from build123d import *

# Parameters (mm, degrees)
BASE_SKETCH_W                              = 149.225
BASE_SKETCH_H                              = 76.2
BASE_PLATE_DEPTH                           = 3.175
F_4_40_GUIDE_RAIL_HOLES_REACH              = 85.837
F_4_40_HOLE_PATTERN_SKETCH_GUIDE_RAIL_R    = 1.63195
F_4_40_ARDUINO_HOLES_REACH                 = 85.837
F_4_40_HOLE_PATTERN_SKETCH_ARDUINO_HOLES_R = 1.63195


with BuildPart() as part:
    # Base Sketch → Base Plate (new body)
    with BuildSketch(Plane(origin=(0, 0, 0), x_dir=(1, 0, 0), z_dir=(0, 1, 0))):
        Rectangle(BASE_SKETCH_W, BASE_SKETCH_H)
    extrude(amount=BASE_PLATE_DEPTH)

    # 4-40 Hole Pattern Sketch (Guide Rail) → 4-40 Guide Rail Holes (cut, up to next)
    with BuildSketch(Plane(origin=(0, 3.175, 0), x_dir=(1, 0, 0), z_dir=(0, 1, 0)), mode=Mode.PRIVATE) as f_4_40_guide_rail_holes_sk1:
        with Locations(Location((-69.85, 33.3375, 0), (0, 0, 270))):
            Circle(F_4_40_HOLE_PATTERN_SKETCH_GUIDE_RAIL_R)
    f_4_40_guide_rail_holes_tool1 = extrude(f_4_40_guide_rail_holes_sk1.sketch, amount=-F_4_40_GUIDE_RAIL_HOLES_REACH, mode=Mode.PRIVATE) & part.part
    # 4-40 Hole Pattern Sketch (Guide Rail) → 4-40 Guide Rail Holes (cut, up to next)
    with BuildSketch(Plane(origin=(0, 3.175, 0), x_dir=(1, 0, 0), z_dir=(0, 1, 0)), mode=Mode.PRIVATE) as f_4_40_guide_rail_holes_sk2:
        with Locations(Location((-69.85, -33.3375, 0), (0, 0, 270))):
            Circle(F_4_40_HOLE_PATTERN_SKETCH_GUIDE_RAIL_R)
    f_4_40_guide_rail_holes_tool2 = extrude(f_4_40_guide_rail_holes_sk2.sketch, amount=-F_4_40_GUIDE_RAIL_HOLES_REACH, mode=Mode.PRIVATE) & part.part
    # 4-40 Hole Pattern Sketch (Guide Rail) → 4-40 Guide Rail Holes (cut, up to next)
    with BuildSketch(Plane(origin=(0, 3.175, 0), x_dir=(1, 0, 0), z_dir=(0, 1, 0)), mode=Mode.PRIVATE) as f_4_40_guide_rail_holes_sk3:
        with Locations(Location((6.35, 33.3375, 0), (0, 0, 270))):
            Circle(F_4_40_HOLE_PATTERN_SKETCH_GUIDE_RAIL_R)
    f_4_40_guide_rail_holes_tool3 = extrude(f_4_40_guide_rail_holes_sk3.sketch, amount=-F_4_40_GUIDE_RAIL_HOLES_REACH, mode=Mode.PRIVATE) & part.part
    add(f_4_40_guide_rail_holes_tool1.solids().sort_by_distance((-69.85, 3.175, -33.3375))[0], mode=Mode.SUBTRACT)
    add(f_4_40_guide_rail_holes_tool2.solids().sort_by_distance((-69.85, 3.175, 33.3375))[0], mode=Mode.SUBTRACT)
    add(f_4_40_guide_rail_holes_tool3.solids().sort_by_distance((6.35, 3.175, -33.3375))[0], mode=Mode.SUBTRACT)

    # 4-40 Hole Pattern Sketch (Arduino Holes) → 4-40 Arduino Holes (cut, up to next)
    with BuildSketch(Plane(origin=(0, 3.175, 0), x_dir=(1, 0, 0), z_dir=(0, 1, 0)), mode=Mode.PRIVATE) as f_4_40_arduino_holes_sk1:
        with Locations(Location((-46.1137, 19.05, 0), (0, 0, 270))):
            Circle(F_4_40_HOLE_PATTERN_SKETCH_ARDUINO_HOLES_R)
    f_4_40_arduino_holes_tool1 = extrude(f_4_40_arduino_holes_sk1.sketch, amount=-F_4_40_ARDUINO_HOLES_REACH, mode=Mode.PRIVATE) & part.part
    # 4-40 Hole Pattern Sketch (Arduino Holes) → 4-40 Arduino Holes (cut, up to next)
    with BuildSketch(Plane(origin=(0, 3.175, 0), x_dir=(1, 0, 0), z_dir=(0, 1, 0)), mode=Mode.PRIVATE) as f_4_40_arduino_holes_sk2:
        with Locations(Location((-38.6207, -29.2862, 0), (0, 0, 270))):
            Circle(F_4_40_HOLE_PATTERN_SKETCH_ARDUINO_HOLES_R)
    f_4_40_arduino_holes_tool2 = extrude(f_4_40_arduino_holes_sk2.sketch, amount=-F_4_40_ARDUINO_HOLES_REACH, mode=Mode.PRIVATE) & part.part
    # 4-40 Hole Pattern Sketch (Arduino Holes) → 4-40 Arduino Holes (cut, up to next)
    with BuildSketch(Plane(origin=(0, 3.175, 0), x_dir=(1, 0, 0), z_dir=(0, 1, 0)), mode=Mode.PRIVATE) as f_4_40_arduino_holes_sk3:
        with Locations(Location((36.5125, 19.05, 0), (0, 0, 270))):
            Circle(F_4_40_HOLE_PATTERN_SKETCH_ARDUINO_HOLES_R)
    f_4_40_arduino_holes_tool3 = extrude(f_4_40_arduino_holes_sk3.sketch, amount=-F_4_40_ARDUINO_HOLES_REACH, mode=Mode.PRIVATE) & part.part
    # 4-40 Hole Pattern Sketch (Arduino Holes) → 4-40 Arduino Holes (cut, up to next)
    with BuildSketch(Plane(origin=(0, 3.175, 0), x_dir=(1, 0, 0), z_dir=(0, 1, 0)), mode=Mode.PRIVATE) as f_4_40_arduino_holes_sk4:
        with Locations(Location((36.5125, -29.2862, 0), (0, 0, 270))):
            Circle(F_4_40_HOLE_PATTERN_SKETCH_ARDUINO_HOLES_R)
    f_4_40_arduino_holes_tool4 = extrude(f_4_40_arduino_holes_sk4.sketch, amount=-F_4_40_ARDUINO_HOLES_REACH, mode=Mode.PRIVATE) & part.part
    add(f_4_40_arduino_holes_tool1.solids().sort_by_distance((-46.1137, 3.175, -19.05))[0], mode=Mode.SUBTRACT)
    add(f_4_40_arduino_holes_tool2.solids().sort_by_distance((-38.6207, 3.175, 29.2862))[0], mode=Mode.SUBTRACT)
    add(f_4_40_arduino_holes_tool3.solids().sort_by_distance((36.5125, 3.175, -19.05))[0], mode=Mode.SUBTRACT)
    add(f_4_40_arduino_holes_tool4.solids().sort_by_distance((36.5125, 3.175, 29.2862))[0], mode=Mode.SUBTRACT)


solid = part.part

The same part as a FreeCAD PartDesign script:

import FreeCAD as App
import Part
import Sketcher
Q = App.Units.Quantity

doc = App.newDocument("Part")
body = doc.addObject("PartDesign::Body", "Body")

# Sketch on XZ plane
sketch1 = doc.addObject("Sketcher::SketchObject", "Sketch")
body.addObject(sketch1)
sketch1.AttachmentSupport = (doc.XZ_Plane, [""])
sketch1.MapMode = "FlatFace"
sketch1.addGeometry([
    Part.LineSegment(App.Vector(-75, -38, 0), App.Vector(-75, 38, 0)),
    Part.LineSegment(App.Vector(-75, 38, 0), App.Vector(75, 38, 0)),
    Part.LineSegment(App.Vector(75, 38, 0), App.Vector(75, -38, 0)),
    Part.LineSegment(App.Vector(75, -38, 0), App.Vector(-75, -38, 0)),
], False)
sketch1.addConstraint([
    Sketcher.Constraint("Coincident", 0, 2, 1, 1),
    Sketcher.Constraint("Coincident", 1, 2, 2, 1),
    Sketcher.Constraint("Coincident", 2, 2, 3, 1),
    Sketcher.Constraint("Coincident", 3, 2, 0, 1),
    Sketcher.Constraint("Vertical", 0),
    Sketcher.Constraint("Horizontal", 1),
    Sketcher.Constraint("Vertical", 2),
    Sketcher.Constraint("Horizontal", 3),
    Sketcher.Constraint("Symmetric", 0, 2, 2, 2, -1, 1),
    Sketcher.Constraint("DistanceY", 0, 1, 0, 2, Q("3 in")),
    Sketcher.Constraint("DistanceX", 1, 1, 1, 2, Q("5.875 in")),
])
pad1 = doc.addObject("PartDesign::Pad", "Pad")
body.addObject(pad1)
pad1.Profile = sketch1
pad1.Length = Q("0.125 in")
pad1.Reversed = True

# Sketch on XZ plane
sketch2 = doc.addObject("Sketcher::SketchObject", "Sketch001")
body.addObject(sketch2)
sketch2.AttachmentSupport = (doc.XZ_Plane, [""])
sketch2.MapMode = "FlatFace"
sketch2.AttachmentOffset = App.Placement(App.Vector(0, 0, -0.125 * 25.4), App.Rotation())
sketch2.addGeometry(Part.Circle(App.Vector(-69.8, -33.3, 0), App.Vector(0, 0, 1), 1.6), False)
sketch2.addConstraint([
    Sketcher.Constraint("Diameter", 0, Q("0.1285 in")),
    Sketcher.Constraint("DistanceX", 0, 3, -1, 1, Q("2.75 in")),
    Sketcher.Constraint("DistanceY", 0, 3, -1, 1, Q("1.3125 in")),
])
pocket1 = doc.addObject("PartDesign::Pocket", "Pocket")
body.addObject(pocket1)
pocket1.Profile = sketch2
pocket1.Type = "UpToFirst"
pocket1.Reversed = True

# Sketch on XZ plane
sketch3 = doc.addObject("Sketcher::SketchObject", "Sketch002")
body.addObject(sketch3)
sketch3.AttachmentSupport = (doc.XZ_Plane, [""])
sketch3.MapMode = "FlatFace"
sketch3.AttachmentOffset = App.Placement(App.Vector(0, 0, -0.125 * 25.4), App.Rotation())
sketch3.addGeometry(Part.Circle(App.Vector(-69.8, 33.3, 0), App.Vector(0, 0, 1), 1.6), False)
sketch3.addConstraint([
    Sketcher.Constraint("Diameter", 0, Q("0.1285 in")),
    Sketcher.Constraint("DistanceX", 0, 3, -1, 1, Q("2.75 in")),
    Sketcher.Constraint("DistanceY", -1, 1, 0, 3, Q("1.3125 in")),
])
pocket2 = doc.addObject("PartDesign::Pocket", "Pocket001")
body.addObject(pocket2)
pocket2.Profile = sketch3
pocket2.Type = "UpToFirst"
pocket2.Reversed = True

# Sketch on XZ plane
sketch4 = doc.addObject("Sketcher::SketchObject", "Sketch003")
body.addObject(sketch4)
sketch4.AttachmentSupport = (doc.XZ_Plane, [""])
sketch4.MapMode = "FlatFace"
sketch4.AttachmentOffset = App.Placement(App.Vector(0, 0, -0.125 * 25.4), App.Rotation())
sketch4.addGeometry(Part.Circle(App.Vector(6.3, -33.3, 0), App.Vector(0, 0, 1), 1.6), False)
sketch4.addConstraint([
    Sketcher.Constraint("Diameter", 0, Q("0.1285 in")),
    Sketcher.Constraint("DistanceX", -1, 1, 0, 3, Q("0.25 in")),
    Sketcher.Constraint("DistanceY", 0, 3, -1, 1, Q("1.3125 in")),
])
pocket3 = doc.addObject("PartDesign::Pocket", "Pocket002")
body.addObject(pocket3)
pocket3.Profile = sketch4
pocket3.Type = "UpToFirst"
pocket3.Reversed = True

# Sketch on XZ plane
sketch5 = doc.addObject("Sketcher::SketchObject", "Sketch004")
body.addObject(sketch5)
sketch5.AttachmentSupport = (doc.XZ_Plane, [""])
sketch5.MapMode = "FlatFace"
sketch5.AttachmentOffset = App.Placement(App.Vector(0, 0, -0.125 * 25.4), App.Rotation())
sketch5.addGeometry(Part.Circle(App.Vector(-46.1, -19.1, 0), App.Vector(0, 0, 1), 1.6), False)
sketch5.addConstraint([
    Sketcher.Constraint("Diameter", 0, Q("0.1285 in")),
    Sketcher.Constraint("DistanceY", 0, 3, -1, 1, Q("0.75 in")),
    Sketcher.Constraint("DistanceX", 0, 3, -1, 1, Q("1.8155 in")),
])
pocket4 = doc.addObject("PartDesign::Pocket", "Pocket003")
body.addObject(pocket4)
pocket4.Profile = sketch5
pocket4.Type = "UpToFirst"
pocket4.Reversed = True

# Sketch on XZ plane
sketch6 = doc.addObject("Sketcher::SketchObject", "Sketch005")
body.addObject(sketch6)
sketch6.AttachmentSupport = (doc.XZ_Plane, [""])
sketch6.MapMode = "FlatFace"
sketch6.AttachmentOffset = App.Placement(App.Vector(0, 0, -0.125 * 25.4), App.Rotation())
sketch6.addGeometry(Part.Circle(App.Vector(-38.6, 29.3, 0), App.Vector(0, 0, 1), 1.6), False)
sketch6.addConstraint([
    Sketcher.Constraint("Diameter", 0, Q("0.1285 in")),
    Sketcher.Constraint("DistanceY", -1, 1, 0, 3, Q("1.153 in")),
    Sketcher.Constraint("DistanceX", 0, 3, -1, 1, Q("1.5205 in")),
])
pocket5 = doc.addObject("PartDesign::Pocket", "Pocket004")
body.addObject(pocket5)
pocket5.Profile = sketch6
pocket5.Type = "UpToFirst"
pocket5.Reversed = True

# Sketch on XZ plane
sketch7 = doc.addObject("Sketcher::SketchObject", "Sketch006")
body.addObject(sketch7)
sketch7.AttachmentSupport = (doc.XZ_Plane, [""])
sketch7.MapMode = "FlatFace"
sketch7.AttachmentOffset = App.Placement(App.Vector(0, 0, -0.125 * 25.4), App.Rotation())
sketch7.addGeometry(Part.Circle(App.Vector(36.5, -19.1, 0), App.Vector(0, 0, 1), 1.6), False)
sketch7.addConstraint([
    Sketcher.Constraint("Diameter", 0, Q("0.1285 in")),
    Sketcher.Constraint("DistanceY", 0, 3, -1, 1, Q("0.75 in")),
    Sketcher.Constraint("DistanceX", -1, 1, 0, 3, Q("1.4375 in")),
])
pocket6 = doc.addObject("PartDesign::Pocket", "Pocket005")
body.addObject(pocket6)
pocket6.Profile = sketch7
pocket6.Type = "UpToFirst"
pocket6.Reversed = True

# Sketch on XZ plane
sketch8 = doc.addObject("Sketcher::SketchObject", "Sketch007")
body.addObject(sketch8)
sketch8.AttachmentSupport = (doc.XZ_Plane, [""])
sketch8.MapMode = "FlatFace"
sketch8.AttachmentOffset = App.Placement(App.Vector(0, 0, -0.125 * 25.4), App.Rotation())
sketch8.addGeometry(Part.Circle(App.Vector(36.5, 29.3, 0), App.Vector(0, 0, 1), 1.6), False)
sketch8.addConstraint([
    Sketcher.Constraint("Diameter", 0, Q("0.1285 in")),
    Sketcher.Constraint("DistanceX", -1, 1, 0, 3, Q("1.4375 in")),
    Sketcher.Constraint("DistanceY", -1, 1, 0, 3, Q("1.153 in")),
])
pocket7 = doc.addObject("PartDesign::Pocket", "Pocket006")
body.addObject(pocket7)
pocket7.Profile = sketch8
pocket7.Type = "UpToFirst"
pocket7.Reversed = True

doc.recompute()
